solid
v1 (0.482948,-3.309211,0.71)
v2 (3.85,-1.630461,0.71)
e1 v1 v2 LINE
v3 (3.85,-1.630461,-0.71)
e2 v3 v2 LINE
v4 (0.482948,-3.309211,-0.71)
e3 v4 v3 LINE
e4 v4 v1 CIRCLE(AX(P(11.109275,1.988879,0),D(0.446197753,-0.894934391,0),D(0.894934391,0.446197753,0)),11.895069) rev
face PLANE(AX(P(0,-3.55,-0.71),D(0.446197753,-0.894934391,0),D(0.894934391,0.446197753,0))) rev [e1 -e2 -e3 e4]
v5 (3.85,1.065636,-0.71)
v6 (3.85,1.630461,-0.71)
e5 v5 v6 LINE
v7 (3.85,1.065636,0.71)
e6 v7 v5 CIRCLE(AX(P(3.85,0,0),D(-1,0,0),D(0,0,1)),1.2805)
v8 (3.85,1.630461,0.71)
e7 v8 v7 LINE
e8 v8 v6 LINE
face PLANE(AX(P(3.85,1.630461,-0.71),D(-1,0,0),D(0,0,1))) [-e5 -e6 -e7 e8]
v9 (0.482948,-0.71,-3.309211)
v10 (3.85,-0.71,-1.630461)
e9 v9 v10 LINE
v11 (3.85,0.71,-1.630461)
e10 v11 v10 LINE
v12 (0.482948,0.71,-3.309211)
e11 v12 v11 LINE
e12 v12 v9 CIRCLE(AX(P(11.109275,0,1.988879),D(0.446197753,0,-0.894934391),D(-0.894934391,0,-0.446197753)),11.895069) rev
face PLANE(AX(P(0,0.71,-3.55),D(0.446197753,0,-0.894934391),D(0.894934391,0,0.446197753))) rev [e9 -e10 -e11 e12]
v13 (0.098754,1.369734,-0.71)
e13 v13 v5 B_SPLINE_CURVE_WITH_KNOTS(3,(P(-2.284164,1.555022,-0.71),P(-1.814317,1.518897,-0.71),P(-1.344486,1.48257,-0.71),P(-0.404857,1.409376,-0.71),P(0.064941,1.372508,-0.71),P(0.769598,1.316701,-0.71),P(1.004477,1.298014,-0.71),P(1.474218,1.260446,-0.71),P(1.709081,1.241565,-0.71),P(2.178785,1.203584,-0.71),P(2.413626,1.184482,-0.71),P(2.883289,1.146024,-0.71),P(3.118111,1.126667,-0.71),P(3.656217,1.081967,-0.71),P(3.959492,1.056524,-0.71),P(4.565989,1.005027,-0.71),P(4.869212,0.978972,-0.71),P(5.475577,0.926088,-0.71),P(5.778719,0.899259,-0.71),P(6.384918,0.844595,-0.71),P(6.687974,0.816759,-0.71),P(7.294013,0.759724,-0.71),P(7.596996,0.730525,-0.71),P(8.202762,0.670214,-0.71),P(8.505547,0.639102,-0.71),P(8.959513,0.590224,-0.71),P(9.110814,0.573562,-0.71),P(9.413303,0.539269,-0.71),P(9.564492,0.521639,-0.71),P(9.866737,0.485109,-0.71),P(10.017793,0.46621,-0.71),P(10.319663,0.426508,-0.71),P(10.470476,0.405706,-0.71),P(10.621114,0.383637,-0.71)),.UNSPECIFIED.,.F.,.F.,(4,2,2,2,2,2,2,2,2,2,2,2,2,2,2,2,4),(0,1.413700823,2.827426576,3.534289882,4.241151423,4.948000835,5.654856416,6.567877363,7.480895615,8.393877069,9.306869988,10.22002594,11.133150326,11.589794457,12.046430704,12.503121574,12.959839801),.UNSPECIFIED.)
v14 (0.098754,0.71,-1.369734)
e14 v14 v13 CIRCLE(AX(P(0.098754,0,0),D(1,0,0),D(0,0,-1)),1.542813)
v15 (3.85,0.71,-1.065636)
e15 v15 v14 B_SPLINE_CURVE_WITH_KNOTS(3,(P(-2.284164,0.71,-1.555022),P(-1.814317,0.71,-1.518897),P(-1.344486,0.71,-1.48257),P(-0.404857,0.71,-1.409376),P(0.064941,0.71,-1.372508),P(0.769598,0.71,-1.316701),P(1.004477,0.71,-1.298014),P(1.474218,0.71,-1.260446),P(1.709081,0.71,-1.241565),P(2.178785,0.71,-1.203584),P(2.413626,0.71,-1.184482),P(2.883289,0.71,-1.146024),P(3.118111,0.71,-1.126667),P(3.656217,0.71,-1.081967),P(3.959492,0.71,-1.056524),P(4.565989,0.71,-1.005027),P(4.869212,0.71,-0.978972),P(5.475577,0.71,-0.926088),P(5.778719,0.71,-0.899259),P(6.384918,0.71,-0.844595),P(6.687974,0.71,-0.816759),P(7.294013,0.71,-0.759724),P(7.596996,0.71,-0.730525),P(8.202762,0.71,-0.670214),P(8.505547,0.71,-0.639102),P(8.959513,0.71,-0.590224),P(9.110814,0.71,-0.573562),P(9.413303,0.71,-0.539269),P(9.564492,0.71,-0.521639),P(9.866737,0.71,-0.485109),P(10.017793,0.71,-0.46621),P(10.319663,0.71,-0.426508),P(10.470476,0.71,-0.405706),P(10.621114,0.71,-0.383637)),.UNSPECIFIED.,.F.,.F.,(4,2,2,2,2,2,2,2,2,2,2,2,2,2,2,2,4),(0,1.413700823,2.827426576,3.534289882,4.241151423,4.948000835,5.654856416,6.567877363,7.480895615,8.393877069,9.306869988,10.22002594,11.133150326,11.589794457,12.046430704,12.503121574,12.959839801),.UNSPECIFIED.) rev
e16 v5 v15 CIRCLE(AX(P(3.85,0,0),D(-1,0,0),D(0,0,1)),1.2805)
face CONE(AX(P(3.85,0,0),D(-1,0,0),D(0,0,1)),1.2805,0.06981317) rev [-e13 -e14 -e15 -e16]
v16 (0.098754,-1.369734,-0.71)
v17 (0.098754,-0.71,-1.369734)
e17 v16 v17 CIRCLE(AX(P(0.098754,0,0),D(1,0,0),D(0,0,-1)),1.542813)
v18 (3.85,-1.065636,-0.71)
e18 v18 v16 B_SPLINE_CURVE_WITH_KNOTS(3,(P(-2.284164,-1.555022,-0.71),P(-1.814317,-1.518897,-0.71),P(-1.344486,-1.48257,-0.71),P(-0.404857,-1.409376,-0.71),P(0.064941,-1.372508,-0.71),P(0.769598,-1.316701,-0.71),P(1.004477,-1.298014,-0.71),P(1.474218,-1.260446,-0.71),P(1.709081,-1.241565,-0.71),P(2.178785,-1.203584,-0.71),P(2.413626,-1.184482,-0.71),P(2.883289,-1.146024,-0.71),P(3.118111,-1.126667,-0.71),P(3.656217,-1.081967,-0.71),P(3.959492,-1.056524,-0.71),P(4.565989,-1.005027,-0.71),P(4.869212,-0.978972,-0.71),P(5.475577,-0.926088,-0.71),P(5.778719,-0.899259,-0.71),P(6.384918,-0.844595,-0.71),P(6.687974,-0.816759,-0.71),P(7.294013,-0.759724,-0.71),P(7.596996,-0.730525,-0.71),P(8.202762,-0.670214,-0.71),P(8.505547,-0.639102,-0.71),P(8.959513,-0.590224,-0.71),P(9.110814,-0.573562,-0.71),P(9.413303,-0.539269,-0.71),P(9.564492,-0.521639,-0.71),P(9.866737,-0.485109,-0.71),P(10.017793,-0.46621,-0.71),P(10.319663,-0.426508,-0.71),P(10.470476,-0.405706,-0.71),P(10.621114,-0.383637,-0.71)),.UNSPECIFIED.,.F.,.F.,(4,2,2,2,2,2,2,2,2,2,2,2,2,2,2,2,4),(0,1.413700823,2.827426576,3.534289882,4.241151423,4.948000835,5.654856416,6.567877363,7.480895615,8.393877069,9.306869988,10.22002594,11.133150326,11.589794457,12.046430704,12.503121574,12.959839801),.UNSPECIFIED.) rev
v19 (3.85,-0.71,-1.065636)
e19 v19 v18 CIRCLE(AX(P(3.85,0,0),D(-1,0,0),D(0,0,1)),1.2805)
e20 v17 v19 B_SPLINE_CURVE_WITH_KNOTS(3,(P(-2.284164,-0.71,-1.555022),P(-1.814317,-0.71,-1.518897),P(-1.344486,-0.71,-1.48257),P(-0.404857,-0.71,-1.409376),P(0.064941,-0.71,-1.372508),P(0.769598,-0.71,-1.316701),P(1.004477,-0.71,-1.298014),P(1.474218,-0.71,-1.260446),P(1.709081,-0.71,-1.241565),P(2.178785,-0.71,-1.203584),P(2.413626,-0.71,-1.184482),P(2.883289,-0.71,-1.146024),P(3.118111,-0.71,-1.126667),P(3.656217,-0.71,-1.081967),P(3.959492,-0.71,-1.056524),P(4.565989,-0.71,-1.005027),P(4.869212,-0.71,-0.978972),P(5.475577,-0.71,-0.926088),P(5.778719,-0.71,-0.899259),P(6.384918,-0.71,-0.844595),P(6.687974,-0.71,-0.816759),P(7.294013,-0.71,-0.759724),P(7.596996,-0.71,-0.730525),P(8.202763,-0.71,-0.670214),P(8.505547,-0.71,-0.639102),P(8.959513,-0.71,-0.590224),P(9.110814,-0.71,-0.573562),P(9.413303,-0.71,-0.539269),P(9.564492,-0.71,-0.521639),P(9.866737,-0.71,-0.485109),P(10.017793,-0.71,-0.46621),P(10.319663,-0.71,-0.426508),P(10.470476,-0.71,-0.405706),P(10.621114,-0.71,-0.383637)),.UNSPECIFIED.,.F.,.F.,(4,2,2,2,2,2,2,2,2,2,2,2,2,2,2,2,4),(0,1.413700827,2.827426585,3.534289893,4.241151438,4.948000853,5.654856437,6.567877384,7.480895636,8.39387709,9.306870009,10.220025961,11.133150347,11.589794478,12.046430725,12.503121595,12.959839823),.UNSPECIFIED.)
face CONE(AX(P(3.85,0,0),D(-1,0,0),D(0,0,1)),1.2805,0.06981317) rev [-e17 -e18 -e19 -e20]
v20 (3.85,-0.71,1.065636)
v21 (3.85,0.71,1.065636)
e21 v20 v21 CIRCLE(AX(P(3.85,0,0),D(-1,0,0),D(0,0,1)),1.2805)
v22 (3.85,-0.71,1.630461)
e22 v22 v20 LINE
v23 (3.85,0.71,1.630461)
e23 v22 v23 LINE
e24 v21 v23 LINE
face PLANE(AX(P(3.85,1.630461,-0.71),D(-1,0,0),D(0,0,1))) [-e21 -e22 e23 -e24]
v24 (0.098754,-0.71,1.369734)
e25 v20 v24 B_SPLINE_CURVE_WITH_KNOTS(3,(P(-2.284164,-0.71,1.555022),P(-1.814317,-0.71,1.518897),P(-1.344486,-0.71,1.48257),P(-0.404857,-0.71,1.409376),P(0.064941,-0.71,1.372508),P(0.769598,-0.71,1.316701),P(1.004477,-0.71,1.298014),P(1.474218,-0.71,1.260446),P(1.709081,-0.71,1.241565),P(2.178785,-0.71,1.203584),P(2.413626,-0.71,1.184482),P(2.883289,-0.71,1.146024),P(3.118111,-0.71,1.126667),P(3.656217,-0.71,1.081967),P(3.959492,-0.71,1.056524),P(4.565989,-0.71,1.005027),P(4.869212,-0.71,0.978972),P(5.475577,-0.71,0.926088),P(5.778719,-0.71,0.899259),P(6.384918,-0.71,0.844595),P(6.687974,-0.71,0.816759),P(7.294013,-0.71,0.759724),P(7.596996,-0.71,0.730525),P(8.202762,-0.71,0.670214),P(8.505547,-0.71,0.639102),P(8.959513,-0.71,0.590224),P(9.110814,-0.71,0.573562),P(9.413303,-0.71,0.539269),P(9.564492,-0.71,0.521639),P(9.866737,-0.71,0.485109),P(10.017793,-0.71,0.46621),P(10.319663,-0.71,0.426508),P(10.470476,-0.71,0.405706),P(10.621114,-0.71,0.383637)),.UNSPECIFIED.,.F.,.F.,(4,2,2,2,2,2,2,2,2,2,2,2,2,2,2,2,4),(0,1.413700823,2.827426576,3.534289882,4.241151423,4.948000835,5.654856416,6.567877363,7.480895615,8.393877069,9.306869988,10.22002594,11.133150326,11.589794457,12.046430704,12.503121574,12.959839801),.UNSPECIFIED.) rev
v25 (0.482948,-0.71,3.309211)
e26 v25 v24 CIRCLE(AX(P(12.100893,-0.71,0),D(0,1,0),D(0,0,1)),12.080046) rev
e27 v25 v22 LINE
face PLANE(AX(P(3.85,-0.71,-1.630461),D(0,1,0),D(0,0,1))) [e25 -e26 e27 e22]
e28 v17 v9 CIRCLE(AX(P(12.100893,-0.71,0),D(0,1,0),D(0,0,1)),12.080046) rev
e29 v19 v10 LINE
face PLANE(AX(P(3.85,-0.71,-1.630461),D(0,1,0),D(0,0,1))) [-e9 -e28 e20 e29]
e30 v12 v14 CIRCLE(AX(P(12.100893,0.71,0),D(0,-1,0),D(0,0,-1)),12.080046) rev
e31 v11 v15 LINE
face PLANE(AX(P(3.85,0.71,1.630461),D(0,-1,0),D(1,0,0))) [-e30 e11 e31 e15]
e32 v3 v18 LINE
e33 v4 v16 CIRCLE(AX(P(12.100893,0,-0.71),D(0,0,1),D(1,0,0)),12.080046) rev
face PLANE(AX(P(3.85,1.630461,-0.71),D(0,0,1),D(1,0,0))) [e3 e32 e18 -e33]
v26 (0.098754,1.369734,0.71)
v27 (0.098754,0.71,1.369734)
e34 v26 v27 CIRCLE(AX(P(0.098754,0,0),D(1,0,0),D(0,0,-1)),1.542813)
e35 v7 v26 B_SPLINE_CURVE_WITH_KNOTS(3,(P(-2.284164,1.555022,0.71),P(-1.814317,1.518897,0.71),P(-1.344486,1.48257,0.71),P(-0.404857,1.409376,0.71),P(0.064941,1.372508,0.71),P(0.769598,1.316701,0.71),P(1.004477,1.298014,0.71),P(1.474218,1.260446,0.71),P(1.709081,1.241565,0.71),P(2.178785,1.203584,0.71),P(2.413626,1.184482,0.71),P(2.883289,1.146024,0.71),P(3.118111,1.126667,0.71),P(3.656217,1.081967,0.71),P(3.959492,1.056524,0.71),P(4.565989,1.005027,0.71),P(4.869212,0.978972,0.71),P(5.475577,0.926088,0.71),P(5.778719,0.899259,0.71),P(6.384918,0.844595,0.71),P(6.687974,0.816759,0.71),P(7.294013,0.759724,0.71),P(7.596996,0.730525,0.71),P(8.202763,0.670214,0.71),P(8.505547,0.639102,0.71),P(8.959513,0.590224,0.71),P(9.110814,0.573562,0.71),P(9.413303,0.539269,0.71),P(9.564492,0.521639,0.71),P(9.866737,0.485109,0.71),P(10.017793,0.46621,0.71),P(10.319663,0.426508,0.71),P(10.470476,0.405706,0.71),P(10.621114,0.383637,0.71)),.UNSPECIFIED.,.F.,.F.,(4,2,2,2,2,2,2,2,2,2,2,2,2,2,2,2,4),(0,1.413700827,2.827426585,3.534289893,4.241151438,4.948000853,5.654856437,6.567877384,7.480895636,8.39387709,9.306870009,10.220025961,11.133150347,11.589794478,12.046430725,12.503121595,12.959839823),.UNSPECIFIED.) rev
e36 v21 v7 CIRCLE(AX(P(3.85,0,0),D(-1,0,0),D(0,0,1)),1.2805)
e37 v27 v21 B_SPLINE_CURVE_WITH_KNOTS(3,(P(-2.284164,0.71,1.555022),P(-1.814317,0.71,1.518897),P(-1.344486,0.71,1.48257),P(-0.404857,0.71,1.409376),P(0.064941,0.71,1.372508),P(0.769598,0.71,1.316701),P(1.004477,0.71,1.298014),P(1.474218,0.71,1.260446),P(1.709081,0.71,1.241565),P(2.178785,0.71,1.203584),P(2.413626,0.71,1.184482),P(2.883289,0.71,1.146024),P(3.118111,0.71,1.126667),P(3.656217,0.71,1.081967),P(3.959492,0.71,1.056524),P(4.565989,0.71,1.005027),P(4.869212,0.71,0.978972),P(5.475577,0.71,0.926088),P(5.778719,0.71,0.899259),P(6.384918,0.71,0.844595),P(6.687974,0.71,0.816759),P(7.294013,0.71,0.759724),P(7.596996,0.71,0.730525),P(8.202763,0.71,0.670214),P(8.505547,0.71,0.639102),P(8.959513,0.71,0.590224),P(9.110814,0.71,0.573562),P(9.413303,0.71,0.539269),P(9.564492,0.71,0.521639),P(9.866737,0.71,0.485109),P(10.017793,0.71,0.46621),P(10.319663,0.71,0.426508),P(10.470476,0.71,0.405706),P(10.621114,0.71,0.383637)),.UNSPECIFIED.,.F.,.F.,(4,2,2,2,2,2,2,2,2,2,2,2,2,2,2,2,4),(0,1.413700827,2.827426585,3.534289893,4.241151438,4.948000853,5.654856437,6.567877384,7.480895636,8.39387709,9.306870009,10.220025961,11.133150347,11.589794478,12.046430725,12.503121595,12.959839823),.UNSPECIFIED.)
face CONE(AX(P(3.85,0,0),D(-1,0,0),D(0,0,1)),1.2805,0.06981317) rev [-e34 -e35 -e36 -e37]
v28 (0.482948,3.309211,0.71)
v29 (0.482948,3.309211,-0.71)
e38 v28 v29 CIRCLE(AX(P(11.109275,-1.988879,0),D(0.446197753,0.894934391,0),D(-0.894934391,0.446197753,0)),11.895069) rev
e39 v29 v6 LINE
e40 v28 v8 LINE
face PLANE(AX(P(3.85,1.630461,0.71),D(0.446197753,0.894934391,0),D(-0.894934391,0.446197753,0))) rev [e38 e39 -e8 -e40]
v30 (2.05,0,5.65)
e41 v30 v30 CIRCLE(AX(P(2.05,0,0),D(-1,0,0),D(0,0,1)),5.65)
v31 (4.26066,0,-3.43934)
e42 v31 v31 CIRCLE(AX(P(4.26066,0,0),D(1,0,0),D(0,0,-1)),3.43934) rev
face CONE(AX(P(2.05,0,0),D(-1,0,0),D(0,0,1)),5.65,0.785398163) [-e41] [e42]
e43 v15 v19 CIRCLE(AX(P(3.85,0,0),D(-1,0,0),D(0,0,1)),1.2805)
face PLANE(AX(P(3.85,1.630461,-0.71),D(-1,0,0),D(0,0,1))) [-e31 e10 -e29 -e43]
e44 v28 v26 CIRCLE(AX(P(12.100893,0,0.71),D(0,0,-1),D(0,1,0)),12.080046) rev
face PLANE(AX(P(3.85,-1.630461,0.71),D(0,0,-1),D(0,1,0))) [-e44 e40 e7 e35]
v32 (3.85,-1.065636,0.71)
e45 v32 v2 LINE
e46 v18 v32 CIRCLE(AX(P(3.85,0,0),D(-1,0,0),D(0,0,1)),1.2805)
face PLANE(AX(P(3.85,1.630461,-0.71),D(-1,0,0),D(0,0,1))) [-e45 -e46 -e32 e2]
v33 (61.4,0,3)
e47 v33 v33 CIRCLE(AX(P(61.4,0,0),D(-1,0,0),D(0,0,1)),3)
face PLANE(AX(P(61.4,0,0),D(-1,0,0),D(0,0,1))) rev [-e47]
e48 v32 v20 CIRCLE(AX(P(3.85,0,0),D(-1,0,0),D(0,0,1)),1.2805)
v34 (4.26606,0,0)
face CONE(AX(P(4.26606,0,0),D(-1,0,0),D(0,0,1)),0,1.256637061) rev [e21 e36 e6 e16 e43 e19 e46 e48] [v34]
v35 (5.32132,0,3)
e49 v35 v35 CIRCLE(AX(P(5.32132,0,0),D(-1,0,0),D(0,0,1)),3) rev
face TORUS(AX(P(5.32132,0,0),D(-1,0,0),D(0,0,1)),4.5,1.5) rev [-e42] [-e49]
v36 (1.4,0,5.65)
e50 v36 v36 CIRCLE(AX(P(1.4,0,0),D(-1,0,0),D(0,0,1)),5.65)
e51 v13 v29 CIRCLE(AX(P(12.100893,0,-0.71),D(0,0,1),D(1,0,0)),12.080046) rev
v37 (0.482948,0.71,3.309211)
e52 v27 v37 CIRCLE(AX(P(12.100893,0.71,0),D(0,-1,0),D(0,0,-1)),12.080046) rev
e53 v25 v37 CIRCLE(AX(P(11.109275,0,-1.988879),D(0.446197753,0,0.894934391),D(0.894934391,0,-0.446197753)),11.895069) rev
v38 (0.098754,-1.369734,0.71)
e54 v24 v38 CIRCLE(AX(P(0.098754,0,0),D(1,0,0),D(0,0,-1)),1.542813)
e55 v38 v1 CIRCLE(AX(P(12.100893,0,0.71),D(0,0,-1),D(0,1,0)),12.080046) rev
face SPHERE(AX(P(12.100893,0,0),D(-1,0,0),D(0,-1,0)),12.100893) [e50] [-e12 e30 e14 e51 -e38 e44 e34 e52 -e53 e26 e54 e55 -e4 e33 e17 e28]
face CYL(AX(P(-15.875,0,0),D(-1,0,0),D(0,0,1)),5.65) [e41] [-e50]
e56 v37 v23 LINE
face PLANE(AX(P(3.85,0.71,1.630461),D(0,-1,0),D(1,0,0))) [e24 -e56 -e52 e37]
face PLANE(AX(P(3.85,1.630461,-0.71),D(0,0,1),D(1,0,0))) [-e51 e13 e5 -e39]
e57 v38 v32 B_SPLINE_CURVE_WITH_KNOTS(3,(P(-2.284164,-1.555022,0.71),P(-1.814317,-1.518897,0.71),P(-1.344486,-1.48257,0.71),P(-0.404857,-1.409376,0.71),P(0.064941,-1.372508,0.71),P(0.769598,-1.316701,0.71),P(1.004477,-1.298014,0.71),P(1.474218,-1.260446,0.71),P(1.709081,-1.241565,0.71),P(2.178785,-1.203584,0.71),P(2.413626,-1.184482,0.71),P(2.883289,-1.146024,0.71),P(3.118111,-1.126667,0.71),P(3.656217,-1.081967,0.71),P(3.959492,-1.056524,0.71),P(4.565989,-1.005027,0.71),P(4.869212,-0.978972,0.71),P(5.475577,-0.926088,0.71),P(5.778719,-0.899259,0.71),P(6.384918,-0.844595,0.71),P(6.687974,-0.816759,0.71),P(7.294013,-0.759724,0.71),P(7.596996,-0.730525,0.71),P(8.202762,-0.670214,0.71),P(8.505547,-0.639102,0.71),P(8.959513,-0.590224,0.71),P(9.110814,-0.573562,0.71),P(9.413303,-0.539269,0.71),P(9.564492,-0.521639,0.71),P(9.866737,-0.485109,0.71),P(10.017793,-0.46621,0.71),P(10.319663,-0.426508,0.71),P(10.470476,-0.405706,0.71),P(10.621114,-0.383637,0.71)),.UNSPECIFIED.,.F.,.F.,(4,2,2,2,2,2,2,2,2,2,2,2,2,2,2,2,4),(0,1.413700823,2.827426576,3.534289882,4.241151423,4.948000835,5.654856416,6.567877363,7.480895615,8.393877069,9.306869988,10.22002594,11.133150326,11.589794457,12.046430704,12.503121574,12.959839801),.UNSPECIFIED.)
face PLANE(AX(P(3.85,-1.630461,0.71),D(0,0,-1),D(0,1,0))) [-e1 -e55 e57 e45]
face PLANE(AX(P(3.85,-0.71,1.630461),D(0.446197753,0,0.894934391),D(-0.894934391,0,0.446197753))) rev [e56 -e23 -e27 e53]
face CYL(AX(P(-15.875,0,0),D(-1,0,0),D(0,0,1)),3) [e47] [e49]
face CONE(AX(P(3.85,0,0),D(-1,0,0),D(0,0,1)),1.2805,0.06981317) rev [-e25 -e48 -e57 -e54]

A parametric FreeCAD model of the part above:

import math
import FreeCAD as App
import Part
import Sketcher

V = App.Vector
Q = App.Units.Quantity


def edges_at(feature, points):
    """Names of the edges that pass closest to the given points."""
    edges = feature.Shape.Edges
    near = lambda p: min(range(len(edges)), key=lambda i: edges[i].distToShape(Part.Vertex(*p))[0])
    return sorted({f"Edge{near(p) + 1}" for p in points})


def add_polygon(sketch, points):
    """Adds a closed chain of lines whose ends are joined by coincident constraints."""
    first, n = sketch.GeometryCount, len(points)
    for a, b in zip(points, points[1:] + points[:1]):
        sketch.addGeometry(Part.LineSegment(App.Vector(*a, 0), App.Vector(*b, 0)), False)
    for i in range(n):
        sketch.addConstraint(Sketcher.Constraint("Coincident", first + i, 2, first + (i + 1) % n, 1))

doc = App.newDocument("Part")
body = doc.addObject("PartDesign::Body", "Body")

# Sketch on XY plane
sketch1 = body.newObject("Sketcher::SketchObject", "Sketch")
sketch1.AttachmentSupport = (doc.getObject("XY_Plane"), [""])
sketch1.MapMode = "FlatFace"
sketch1.addGeometry([
    Part.LineSegment(V(0, 0, 0), V(61.4, 0, 0)),  # 0
    Part.LineSegment(V(61.4, 0, 0), V(61.4, 3, 0)),  # 1
    Part.LineSegment(V(61.4, 3, 0), V(4.7, 3, 0)),  # 2
    Part.LineSegment(V(4.7, 3, 0), V(2, 5.7, 0)),  # 3
    Part.LineSegment(V(2, 5.7, 0), V(1.4, 5.7, 0)),  # 4
    Part.ArcOfCircle(Part.Circle(V(12.1, 0, 0), V(0, 0, 1), 12.1), math.radians(152), math.radians(180)),  # 5
], False)
sketch1.addConstraint([
    Sketcher.Constraint("Coincident", 0, 2, 1, 1),
    Sketcher.Constraint("Coincident", 1, 2, 2, 1),
    Sketcher.Constraint("Coincident", 2, 2, 3, 1),
    Sketcher.Constraint("Coincident", 3, 2, 4, 1),
    Sketcher.Constraint("Coincident", 4, 2, 5, 1),
    Sketcher.Constraint("Coincident", 5, 2, 0, 1),
    Sketcher.Constraint("Horizontal", 0),
    Sketcher.Constraint("Vertical", 1),
    Sketcher.Constraint("Horizontal", 2),
    Sketcher.Constraint("Horizontal", 4),
    Sketcher.Constraint("Coincident", 5, 2, -1, 1),
    Sketcher.Constraint("PointOnObject", 5, 3, -1),
    Sketcher.Constraint("DistanceY", 1, 1, 1, 2, Q("3 mm")),
    Sketcher.Constraint("Angle", 3, Q("135 deg")),
    Sketcher.Constraint("DistanceX", 0, 1, 0, 2, Q("61.4 mm")),
    Sketcher.Constraint("DistanceX", 2, 2, 2, 1, Q("56.7 mm")),
    Sketcher.Constraint("DistanceX", 4, 2, 1, 2, Q("60 mm")),
    Sketcher.Constraint("DistanceX", 4, 2, 4, 1, Q("0.65 mm")),
])
revolution = body.newObject("PartDesign::Revolution", "Revolution")
revolution.Profile = sketch1
revolution.ReferenceAxis = (sketch1, ["H_Axis"])
revolution.Angle = 360
doc.recompute()

fillet = body.newObject("PartDesign::Fillet", "Fillet")
fillet.Base = (revolution, edges_at(revolution, [(4.7, -3, 0)]))
fillet.Radius = 1.5

# Sketch on YZ plane
sketch2 = body.newObject("Sketcher::SketchObject", "Sketch001")
sketch2.AttachmentSupport = (doc.getObject("YZ_Plane"), [""])
sketch2.MapMode = "FlatFace"
add_polygon(sketch2, [(3.5, 0.7), (-3.5, 0.7), (-3.5, -0.7), (3.5, -0.7)])  # lines 0-3
sketch2.addConstraint([
    Sketcher.Constraint("Horizontal", 0),
    Sketcher.Constraint("Vertical", 1),
    Sketcher.Constraint("Horizontal", 2),
    Sketcher.Constraint("Vertical", 3),
    Sketcher.Constraint("Symmetric", 0, 2, 2, 2, -1, 1),
    Sketcher.Constraint("DistanceX", 0, 2, 0, 1, Q("7.1 mm")),
    Sketcher.Constraint("DistanceY", 1, 2, 1, 1, Q("1.42 mm")),
])

# Sketch on YZ plane
sketch3 = body.newObject("Sketcher::SketchObject", "Sketch002")
sketch3.AttachmentSupport = (doc.getObject("YZ_Plane"), [""])
sketch3.MapMode = "FlatFace"
sketch3.AttachmentOffset = App.Placement(V(0, 0, 3.85), App.Rotation())
add_polygon(sketch3, [(1.6, 0.7), (-1.6, 0.7), (-1.6, -0.7), (1.6, -0.7)])  # lines 0-3
sketch3.addConstraint([
    Sketcher.Constraint("Horizontal", 0),
    Sketcher.Constraint("Vertical", 1),
    Sketcher.Constraint("Horizontal", 2),
    Sketcher.Constraint("Vertical", 3),
    Sketcher.Constraint("Symmetric", 0, 2, 2, 2, -1, 1),
    Sketcher.Constraint("DistanceY", 1, 2, 1, 1, Q("1.42 mm")),
    Sketcher.Constraint("DistanceX", 0, 2, 0, 1, Q("3.260922 mm")),
])

subtractiveloft = body.newObject("PartDesign::SubtractiveLoft", "SubtractiveLoft")
subtractiveloft.Profile = sketch2
subtractiveloft.Sections = [sketch3]
doc.recompute()

polarpattern = body.newObject("PartDesign::PolarPattern", "PolarPattern")
polarpattern.Originals = [subtractiveloft]
polarpattern.Axis = (doc.getObject("X_Axis"), [""])
polarpattern.Angle = 90
polarpattern.Occurrences = 2
body.Tip = polarpattern

# Sketch on XY plane
sketch4 = body.newObject("Sketcher::SketchObject", "Sketch003")
sketch4.AttachmentSupport = (doc.getObject("XY_Plane"), [""])
sketch4.MapMode = "FlatFace"
add_polygon(sketch4, [(0, 1.5), (0, 0), (4.3, 0), (3.9, 1.3)])  # lines 0-3
sketch4.addConstraint([
    Sketcher.Constraint("Vertical", 0),
    Sketcher.Constraint("Horizontal", 1),
    Sketcher.Constraint("Coincident", 0, 2, -1, 1),
    Sketcher.Constraint("Angle", 2, Q("108 deg")),
    Sketcher.Constraint("Angle", 3, Q("176 deg")),
    Sketcher.Constraint("DistanceX", -1, 1, 2, 2, Q("3.85 mm")),
    Sketcher.Constraint("DistanceX", 1, 1, 1, 2, Q("4.26606 mm")),
])
groove = body.newObject("PartDesign::Groove", "Groove")
groove.Profile = sketch4
groove.ReferenceAxis = (sketch4, ["H_Axis"])
groove.Angle = 360

doc.recompute()
